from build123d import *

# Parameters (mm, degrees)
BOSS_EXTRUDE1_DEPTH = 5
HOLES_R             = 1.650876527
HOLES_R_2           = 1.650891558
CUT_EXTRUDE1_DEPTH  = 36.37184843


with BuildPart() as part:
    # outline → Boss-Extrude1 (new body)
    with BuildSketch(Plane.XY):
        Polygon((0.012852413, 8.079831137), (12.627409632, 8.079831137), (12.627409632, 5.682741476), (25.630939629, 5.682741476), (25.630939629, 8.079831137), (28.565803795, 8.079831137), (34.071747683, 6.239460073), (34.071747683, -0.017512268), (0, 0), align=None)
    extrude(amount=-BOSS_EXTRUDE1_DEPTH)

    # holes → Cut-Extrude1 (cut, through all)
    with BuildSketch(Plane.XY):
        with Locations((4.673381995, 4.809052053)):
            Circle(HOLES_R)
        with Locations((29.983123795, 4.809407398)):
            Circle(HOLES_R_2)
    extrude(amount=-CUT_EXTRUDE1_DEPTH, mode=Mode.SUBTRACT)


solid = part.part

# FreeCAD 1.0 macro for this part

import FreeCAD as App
import Part
import Sketcher
Q = App.Units.Quantity

doc = App.newDocument("Part")
params = doc.addObject("Spreadsheet::Sheet", "Params")
for row, (alias, value) in enumerate([
    ("pad1_length", "5 mm"),
], start=1):
    params.set(f"A{row}", alias)
    params.set(f"B{row}", "=" + value)
    params.setAlias(f"B{row}", alias)

body = doc.addObject("PartDesign::Body", "Body")

sketch1 = body.newObject("Sketcher::SketchObject", "Sketch")
sketch1.AttachmentSupport = (doc.getObject("XY_Plane"), [""])
sketch1.MapMode = "FlatFace"
sketch1.addGeometry(Part.LineSegment(App.Vector(12.6, 8.1, 0), App.Vector(0, 8.1, 0)), False)
sketch1.addGeometry(Part.LineSegment(App.Vector(0, 8.1, 0), App.Vector(0, 0, 0)), False)
sketch1.addGeometry(Part.LineSegment(App.Vector(0, 0, 0), App.Vector(34.1, 0, 0)), False)
sketch1.addGeometry(Part.LineSegment(App.Vector(34.1, 0, 0), App.Vector(34.1, 6.2, 0)), False)
sketch1.addGeometry(Part.LineSegment(App.Vector(34.1, 6.2, 0), App.Vector(28.6, 8.1, 0)), False)
sketch1.addGeometry(Part.LineSegment(App.Vector(28.6, 8.1, 0), App.Vector(25.6, 8.1, 0)), False)
sketch1.addGeometry(Part.LineSegment(App.Vector(25.6, 8.1, 0), App.Vector(25.6, 5.7, 0)), False)
sketch1.addGeometry(Part.LineSegment(App.Vector(25.6, 5.7, 0), App.Vector(12.6, 5.7, 0)), False)
sketch1.addGeometry(Part.LineSegment(App.Vector(12.6, 5.7, 0), App.Vector(12.6, 8.1, 0)), False)
sketch1.addConstraint(Sketcher.Constraint("Coincident", 0, 2, 1, 1))
sketch1.addConstraint(Sketcher.Constraint("Coincident", 1, 2, 2, 1))
sketch1.addConstraint(Sketcher.Constraint("Coincident", 2, 2, 3, 1))
sketch1.addConstraint(Sketcher.Constraint("Coincident", 3, 2, 4, 1))
sketch1.addConstraint(Sketcher.Constraint("Coincident", 4, 2, 5, 1))
sketch1.addConstraint(Sketcher.Constraint("Coincident", 5, 2, 6, 1))
sketch1.addConstraint(Sketcher.Constraint("Coincident", 6, 2, 7, 1))
sketch1.addConstraint(Sketcher.Constraint("Coincident", 7, 2, 8, 1))
sketch1.addConstraint(Sketcher.Constraint("Coincident", 8, 2, 0, 1))
sketch1.addConstraint(Sketcher.Constraint("Horizontal", 0))
sketch1.addConstraint(Sketcher.Constraint("Vertical", 3))
sketch1.addConstraint(Sketcher.Constraint("Horizontal", 5))
sketch1.addConstraint(Sketcher.Constraint("Vertical", 6))
sketch1.addConstraint(Sketcher.Constraint("Horizontal", 7))
sketch1.addConstraint(Sketcher.Constraint("Vertical", 8))
sketch1.addConstraint(Sketcher.Constraint("Coincident", 1, 2, -1, 1))
sketch1.addConstraint(Sketcher.Constraint("Horizontal", 0, 2, 4, 2))
sketch1.addConstraint(Sketcher.Constraint("DistanceX", 7, 2, 7, 1, Q("13.00353 mm")))
sketch1.addConstraint(Sketcher.Constraint("DistanceY", 6, 2, 6, 1, Q("2.39709 mm")))
sketch1.addConstraint(Sketcher.Constraint("Distance", 1, Q("8.079841 mm")))
sketch1.addConstraint(Sketcher.Constraint("DistanceX", 0, 2, 0, 1, Q("12.614557 mm")))
sketch1.addConstraint(Sketcher.Constraint("DistanceX", 5, 2, 5, 1, Q("2.934864 mm")))
sketch1.addConstraint(Sketcher.Constraint("DistanceY", 3, 1, 3, 2, Q("6.256972 mm")))
sketch1.addConstraint(Sketcher.Constraint("DistanceY", -1, 1, 3, 2, Q("6.23946 mm")))
sketch1.addConstraint(Sketcher.Constraint("DistanceX", -1, 1, 5, 2, Q("25.63094 mm")))
sketch1.addConstraint(Sketcher.Constraint("DistanceX", 5, 2, 3, 2, Q("8.440808 mm")))
pad1 = body.newObject("PartDesign::Pad", "Pad")
pad1.Profile = sketch1
pad1.setExpression("Length", "Params.pad1_length")
pad1.Reversed = True

sketch2 = body.newObject("Sketcher::SketchObject", "Sketch001")
sketch2.AttachmentSupport = (doc.getObject("XY_Plane"), [""])
sketch2.MapMode = "FlatFace"
sketch2.addGeometry(Part.Circle(App.Vector(4.7, 4.8, 0), App.Vector(0, 0, 1), 1.7), False)
sketch2.addGeometry(Part.Circle(App.Vector(30, 4.8, 0), App.Vector(0, 0, 1), 1.7), False)
sketch2.addConstraint(Sketcher.Constraint("Diameter", 0, Q("3.301753 mm")))
sketch2.addConstraint(Sketcher.Constraint("Diameter", 1, Q("3.301783 mm")))
sketch2.addConstraint(Sketcher.Constraint("DistanceX", -1, 1, 0, 3, Q("4.673382 mm")))
sketch2.addConstraint(Sketcher.Constraint("DistanceX", 0, 3, 1, 3, Q("25.309742 mm")))
sketch2.addConstraint(Sketcher.Constraint("DistanceY", -1, 1, 0, 3, Q("4.809052 mm")))
sketch2.addConstraint(Sketcher.Constraint("DistanceY", -1, 1, 1, 3, Q("4.809407 mm")))
pocket1 = body.newObject("PartDesign::Pocket", "Pocket")
pocket1.Profile = sketch2
pocket1.Type = "ThroughAll"

doc.recompute()
